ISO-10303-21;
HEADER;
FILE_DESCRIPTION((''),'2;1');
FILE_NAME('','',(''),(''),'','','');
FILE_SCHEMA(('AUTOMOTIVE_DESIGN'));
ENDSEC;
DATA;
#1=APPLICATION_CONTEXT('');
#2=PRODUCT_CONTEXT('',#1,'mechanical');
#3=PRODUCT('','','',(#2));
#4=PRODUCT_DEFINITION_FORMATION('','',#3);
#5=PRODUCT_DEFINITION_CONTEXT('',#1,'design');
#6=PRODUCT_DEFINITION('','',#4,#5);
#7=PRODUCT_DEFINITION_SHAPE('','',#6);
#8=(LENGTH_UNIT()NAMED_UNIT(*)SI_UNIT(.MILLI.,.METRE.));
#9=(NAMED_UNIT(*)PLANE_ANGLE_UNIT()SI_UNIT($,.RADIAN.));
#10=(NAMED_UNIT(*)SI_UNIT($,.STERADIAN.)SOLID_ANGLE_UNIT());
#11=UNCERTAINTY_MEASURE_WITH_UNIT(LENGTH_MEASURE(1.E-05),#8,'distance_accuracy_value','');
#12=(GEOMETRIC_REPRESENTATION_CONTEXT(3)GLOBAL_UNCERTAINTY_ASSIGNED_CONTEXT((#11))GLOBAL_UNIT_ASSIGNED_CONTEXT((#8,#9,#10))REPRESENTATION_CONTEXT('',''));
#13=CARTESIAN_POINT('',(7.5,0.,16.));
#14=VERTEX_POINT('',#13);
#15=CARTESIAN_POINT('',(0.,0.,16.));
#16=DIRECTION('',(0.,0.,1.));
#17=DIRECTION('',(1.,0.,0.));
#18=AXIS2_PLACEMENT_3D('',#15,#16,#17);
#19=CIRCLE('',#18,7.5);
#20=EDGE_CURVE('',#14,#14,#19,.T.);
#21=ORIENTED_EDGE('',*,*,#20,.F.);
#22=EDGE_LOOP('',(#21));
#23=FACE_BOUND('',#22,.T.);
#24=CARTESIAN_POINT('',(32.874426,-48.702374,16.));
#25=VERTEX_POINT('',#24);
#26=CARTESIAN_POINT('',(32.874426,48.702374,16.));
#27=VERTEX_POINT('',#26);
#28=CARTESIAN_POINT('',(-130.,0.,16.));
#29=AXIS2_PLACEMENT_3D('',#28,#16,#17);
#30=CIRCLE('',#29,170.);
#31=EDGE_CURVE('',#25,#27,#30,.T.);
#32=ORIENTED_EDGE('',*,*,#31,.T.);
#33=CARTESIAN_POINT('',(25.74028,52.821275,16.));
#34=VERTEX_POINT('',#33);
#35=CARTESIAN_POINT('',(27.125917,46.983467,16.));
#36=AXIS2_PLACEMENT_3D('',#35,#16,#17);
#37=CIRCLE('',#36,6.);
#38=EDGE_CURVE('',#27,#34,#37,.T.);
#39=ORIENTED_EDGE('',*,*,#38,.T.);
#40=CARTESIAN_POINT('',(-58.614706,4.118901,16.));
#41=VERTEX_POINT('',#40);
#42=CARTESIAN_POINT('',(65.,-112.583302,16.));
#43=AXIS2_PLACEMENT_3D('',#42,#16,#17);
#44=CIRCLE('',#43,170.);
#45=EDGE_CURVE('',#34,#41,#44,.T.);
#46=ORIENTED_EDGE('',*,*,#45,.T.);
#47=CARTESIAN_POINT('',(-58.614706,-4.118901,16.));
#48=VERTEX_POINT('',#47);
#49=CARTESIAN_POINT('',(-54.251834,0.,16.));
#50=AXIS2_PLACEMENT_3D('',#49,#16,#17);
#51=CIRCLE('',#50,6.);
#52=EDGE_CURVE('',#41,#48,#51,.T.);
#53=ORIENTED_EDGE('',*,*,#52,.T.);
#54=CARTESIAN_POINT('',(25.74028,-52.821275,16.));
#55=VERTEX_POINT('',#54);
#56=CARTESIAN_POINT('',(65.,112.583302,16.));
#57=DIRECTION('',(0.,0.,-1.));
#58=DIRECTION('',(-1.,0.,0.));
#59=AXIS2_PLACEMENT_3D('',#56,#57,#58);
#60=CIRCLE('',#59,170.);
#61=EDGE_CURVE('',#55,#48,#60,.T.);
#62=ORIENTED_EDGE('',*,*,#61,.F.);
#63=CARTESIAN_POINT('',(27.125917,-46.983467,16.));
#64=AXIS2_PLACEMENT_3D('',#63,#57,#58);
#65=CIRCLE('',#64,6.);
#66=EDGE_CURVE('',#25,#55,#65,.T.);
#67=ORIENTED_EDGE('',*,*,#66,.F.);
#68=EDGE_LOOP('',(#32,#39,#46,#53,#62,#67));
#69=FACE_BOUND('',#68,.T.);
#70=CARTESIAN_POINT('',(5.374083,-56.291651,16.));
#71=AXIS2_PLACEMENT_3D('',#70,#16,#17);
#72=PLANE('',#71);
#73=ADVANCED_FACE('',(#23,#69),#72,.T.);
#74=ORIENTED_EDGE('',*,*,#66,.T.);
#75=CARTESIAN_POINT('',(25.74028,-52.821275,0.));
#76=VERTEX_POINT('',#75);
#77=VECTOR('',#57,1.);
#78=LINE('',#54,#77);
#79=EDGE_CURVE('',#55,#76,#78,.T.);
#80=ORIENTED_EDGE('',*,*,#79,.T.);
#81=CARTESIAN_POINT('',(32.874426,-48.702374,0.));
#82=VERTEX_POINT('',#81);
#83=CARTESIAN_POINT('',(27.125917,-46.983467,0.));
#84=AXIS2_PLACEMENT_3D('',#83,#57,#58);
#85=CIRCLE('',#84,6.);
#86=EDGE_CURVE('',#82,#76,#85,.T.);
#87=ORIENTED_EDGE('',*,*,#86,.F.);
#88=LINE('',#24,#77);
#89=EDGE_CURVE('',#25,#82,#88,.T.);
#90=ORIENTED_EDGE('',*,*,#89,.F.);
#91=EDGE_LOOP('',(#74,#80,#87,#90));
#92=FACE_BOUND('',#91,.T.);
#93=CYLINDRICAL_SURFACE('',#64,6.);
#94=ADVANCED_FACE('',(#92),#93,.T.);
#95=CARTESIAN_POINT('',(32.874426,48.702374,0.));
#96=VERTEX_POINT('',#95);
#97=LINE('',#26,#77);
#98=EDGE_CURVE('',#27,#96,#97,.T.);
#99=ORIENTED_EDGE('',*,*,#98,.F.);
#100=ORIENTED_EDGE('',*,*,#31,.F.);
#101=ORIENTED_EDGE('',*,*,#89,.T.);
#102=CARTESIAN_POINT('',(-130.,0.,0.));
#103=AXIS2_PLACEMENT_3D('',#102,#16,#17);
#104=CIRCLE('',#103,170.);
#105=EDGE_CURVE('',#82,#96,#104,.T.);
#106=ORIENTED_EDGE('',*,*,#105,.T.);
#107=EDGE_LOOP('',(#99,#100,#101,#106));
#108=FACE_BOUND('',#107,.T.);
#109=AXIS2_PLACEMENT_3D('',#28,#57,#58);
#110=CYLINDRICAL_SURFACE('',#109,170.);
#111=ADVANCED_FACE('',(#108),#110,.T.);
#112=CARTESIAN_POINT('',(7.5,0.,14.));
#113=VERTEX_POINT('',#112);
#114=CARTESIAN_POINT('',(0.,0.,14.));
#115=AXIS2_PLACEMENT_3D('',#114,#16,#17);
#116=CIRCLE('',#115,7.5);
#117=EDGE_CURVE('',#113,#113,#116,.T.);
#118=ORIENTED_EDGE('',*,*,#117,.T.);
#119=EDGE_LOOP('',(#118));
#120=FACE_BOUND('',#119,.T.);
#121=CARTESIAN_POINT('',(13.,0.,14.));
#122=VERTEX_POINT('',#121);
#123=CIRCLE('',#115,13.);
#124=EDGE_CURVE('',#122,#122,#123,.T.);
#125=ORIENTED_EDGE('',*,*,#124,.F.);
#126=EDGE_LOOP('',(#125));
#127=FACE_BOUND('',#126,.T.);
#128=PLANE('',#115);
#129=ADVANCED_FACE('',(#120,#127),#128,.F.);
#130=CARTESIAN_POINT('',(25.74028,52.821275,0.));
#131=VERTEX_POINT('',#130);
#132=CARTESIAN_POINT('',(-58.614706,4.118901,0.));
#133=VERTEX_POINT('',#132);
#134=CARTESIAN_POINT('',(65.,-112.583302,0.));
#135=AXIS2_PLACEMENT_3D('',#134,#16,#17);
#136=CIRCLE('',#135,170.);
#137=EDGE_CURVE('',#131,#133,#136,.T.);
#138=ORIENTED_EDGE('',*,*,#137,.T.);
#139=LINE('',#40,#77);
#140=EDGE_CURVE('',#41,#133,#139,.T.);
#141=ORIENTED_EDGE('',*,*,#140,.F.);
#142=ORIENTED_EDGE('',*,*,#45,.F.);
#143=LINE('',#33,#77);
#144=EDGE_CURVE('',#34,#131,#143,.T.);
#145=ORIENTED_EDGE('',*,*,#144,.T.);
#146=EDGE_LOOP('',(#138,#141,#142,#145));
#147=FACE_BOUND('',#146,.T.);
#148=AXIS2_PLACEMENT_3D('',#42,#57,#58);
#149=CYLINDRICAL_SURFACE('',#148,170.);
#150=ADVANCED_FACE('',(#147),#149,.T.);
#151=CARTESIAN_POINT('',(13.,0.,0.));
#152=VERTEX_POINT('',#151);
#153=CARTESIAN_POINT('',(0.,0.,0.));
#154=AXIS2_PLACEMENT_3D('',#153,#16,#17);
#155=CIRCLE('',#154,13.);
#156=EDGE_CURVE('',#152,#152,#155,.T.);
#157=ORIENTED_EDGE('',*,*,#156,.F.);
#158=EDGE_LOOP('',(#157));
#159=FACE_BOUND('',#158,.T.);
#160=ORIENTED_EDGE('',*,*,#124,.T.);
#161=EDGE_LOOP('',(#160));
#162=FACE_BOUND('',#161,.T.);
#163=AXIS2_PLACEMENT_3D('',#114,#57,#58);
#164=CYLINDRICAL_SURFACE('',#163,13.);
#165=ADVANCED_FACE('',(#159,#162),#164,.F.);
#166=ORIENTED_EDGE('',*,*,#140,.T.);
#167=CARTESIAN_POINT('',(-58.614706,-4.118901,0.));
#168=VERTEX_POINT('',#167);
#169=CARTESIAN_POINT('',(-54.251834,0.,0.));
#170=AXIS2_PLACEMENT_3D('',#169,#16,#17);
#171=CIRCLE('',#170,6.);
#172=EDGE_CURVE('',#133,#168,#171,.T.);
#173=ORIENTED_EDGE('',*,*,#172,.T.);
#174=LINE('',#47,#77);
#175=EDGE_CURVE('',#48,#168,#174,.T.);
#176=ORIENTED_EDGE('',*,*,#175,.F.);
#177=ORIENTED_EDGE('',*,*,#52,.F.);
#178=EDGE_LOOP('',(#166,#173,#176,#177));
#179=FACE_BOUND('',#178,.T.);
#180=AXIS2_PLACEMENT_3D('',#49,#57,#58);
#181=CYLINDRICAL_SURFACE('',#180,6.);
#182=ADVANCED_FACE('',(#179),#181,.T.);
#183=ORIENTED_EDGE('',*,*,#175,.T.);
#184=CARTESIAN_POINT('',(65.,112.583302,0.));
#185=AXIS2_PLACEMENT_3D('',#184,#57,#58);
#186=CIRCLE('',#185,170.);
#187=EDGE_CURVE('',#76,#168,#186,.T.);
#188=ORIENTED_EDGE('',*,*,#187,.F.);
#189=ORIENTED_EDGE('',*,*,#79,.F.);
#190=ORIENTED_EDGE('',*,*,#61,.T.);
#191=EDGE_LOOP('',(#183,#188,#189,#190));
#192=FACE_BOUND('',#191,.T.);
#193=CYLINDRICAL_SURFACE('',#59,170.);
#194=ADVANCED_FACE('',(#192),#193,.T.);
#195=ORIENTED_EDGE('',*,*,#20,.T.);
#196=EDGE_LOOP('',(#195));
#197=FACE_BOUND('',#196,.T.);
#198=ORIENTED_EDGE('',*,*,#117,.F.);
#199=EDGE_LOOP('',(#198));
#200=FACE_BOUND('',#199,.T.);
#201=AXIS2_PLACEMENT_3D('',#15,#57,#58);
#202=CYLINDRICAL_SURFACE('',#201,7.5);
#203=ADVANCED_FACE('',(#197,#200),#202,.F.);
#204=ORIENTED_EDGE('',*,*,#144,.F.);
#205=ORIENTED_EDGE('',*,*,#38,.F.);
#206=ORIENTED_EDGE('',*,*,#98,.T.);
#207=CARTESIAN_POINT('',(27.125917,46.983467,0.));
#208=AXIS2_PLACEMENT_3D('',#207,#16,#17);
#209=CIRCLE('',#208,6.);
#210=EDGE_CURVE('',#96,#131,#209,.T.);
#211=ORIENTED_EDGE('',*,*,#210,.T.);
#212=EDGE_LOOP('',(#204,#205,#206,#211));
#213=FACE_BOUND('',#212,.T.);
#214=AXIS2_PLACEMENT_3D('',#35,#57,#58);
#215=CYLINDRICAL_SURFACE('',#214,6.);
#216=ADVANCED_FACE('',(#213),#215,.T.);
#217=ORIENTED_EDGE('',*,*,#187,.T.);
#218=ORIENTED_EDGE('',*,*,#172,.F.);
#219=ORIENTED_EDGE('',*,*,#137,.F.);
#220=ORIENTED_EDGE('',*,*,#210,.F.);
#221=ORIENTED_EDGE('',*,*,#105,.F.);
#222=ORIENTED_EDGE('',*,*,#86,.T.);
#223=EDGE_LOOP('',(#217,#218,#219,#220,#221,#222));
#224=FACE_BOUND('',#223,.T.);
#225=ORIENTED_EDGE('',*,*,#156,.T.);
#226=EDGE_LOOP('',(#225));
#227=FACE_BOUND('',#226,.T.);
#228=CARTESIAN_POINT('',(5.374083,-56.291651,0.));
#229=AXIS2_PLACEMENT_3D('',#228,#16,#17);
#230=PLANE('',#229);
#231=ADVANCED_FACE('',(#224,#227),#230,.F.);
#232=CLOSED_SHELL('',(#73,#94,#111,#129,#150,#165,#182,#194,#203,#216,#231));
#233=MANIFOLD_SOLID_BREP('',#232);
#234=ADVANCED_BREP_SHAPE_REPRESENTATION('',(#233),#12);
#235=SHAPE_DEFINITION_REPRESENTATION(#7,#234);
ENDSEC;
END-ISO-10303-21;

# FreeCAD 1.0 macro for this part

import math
import FreeCAD as App
import Part
import Sketcher

V = App.Vector
Q = App.Units.Quantity

doc = App.newDocument("Part")
params = doc.addObject("Spreadsheet::Sheet", "Params")
for row, (alias, value) in enumerate([
    ("sketch1_diameter", "15 mm"),
    ("sketch1_radius", "170 mm"),
    ("sketch1_radius2", "6 mm"),
    ("pad1_length", "16 mm"),
    ("sketch2_diameter", "26 mm"),
    ("pocket1_length", "14 mm"),
], start=1):
    params.set(f"A{row}", alias)
    params.set(f"B{row}", "=" + value)
    params.setAlias(f"B{row}", alias)

body = doc.addObject("PartDesign::Body", "Body")

sketch1 = body.newObject("Sketcher::SketchObject", "Sketch")
sketch1.AttachmentSupport = (doc.getObject("XY_Plane"), [""])
sketch1.MapMode = "FlatFace"
sketch1.addGeometry([
    Part.ArcOfCircle(Part.Circle(V(65, 113, 0), V(0, 0, 1), 170), math.radians(-137), math.radians(-103)),
    Part.ArcOfCircle(Part.Circle(V(27, -47, 0), V(0, 0, 1), 6), math.radians(-103), math.radians(-17)),
    Part.ArcOfCircle(Part.Circle(V(-130, 0, 0), V(0, 0, 1), 170), math.radians(-17), math.radians(17)),
    Part.ArcOfCircle(Part.Circle(V(27, 47, 0), V(0, 0, 1), 6), math.radians(17), math.radians(103)),
    Part.ArcOfCircle(Part.Circle(V(65, -113, 0), V(0, 0, 1), 170), math.radians(103), math.radians(137)),
    Part.ArcOfCircle(Part.Circle(V(-54, 0, 0), V(0, 0, 1), 6), math.radians(137), math.radians(223)),
    Part.Circle(V(0, 0, 0), V(0, 0, 1), 8),
], False)
sketch1.addConstraint([
    Sketcher.Constraint("Tangent", 0, 2, 1, 1),
    Sketcher.Constraint("Tangent", 1, 2, 2, 1),
    Sketcher.Constraint("Tangent", 2, 2, 3, 1),
    Sketcher.Constraint("Tangent", 3, 2, 4, 1),
    Sketcher.Constraint("Tangent", 4, 2, 5, 1),
    Sketcher.Constraint("Tangent", 5, 2, 0, 1),
    Sketcher.Constraint("Coincident", 6, 3, -1, 1),
    Sketcher.Constraint("Equal", 0, 2),
    Sketcher.Constraint("Equal", 1, 3),
    Sketcher.Constraint("Equal", 2, 4),
    Sketcher.Constraint("Equal", 3, 5),
    Sketcher.Constraint("Symmetric", 1, 3, 3, 3, -1),
    Sketcher.Constraint("PointOnObject", 5, 3, -1),
    Sketcher.Constraint("Diameter", 6, Q("15 mm")),
    Sketcher.Constraint("Radius", 0, Q("170 mm")),
    Sketcher.Constraint("Radius", 1, Q("6 mm")),
    Sketcher.Constraint("DistanceX", -1, 1, 0, 3, Q("65 mm")),
    Sketcher.Constraint("DistanceX", 2, 3, -1, 1, Q("130 mm")),
    Sketcher.Constraint("DistanceY", 5, 2, -1, 1, Q("4.118901 mm")),
])
sketch1.setExpression("Constraints[13]", "Params.sketch1_diameter")
sketch1.setExpression("Constraints[14]", "Params.sketch1_radius")
sketch1.setExpression("Constraints[15]", "Params.sketch1_radius2")
pad1 = body.newObject("PartDesign::Pad", "Pad")
pad1.Profile = sketch1
pad1.setExpression("Length", "Params.pad1_length")

sketch2 = body.newObject("Sketcher::SketchObject", "Sketch001")
sketch2.AttachmentSupport = (doc.getObject("XY_Plane"), [""])
sketch2.MapMode = "FlatFace"
sketch2.addGeometry(Part.Circle(V(0, 0, 0), V(0, 0, 1), 13), False)
sketch2.addConstraint([
    Sketcher.Constraint("Coincident", 0, 3, -1, 1),
    Sketcher.Constraint("Diameter", 0, Q("26 mm")),
])
sketch2.setExpression("Constraints[1]", "Params.sketch2_diameter")
pocket1 = body.newObject("PartDesign::Pocket", "Pocket")
pocket1.Profile = sketch2
pocket1.setExpression("Length", "Params.pocket1_length")
pocket1.Reversed = True

doc.recompute()
